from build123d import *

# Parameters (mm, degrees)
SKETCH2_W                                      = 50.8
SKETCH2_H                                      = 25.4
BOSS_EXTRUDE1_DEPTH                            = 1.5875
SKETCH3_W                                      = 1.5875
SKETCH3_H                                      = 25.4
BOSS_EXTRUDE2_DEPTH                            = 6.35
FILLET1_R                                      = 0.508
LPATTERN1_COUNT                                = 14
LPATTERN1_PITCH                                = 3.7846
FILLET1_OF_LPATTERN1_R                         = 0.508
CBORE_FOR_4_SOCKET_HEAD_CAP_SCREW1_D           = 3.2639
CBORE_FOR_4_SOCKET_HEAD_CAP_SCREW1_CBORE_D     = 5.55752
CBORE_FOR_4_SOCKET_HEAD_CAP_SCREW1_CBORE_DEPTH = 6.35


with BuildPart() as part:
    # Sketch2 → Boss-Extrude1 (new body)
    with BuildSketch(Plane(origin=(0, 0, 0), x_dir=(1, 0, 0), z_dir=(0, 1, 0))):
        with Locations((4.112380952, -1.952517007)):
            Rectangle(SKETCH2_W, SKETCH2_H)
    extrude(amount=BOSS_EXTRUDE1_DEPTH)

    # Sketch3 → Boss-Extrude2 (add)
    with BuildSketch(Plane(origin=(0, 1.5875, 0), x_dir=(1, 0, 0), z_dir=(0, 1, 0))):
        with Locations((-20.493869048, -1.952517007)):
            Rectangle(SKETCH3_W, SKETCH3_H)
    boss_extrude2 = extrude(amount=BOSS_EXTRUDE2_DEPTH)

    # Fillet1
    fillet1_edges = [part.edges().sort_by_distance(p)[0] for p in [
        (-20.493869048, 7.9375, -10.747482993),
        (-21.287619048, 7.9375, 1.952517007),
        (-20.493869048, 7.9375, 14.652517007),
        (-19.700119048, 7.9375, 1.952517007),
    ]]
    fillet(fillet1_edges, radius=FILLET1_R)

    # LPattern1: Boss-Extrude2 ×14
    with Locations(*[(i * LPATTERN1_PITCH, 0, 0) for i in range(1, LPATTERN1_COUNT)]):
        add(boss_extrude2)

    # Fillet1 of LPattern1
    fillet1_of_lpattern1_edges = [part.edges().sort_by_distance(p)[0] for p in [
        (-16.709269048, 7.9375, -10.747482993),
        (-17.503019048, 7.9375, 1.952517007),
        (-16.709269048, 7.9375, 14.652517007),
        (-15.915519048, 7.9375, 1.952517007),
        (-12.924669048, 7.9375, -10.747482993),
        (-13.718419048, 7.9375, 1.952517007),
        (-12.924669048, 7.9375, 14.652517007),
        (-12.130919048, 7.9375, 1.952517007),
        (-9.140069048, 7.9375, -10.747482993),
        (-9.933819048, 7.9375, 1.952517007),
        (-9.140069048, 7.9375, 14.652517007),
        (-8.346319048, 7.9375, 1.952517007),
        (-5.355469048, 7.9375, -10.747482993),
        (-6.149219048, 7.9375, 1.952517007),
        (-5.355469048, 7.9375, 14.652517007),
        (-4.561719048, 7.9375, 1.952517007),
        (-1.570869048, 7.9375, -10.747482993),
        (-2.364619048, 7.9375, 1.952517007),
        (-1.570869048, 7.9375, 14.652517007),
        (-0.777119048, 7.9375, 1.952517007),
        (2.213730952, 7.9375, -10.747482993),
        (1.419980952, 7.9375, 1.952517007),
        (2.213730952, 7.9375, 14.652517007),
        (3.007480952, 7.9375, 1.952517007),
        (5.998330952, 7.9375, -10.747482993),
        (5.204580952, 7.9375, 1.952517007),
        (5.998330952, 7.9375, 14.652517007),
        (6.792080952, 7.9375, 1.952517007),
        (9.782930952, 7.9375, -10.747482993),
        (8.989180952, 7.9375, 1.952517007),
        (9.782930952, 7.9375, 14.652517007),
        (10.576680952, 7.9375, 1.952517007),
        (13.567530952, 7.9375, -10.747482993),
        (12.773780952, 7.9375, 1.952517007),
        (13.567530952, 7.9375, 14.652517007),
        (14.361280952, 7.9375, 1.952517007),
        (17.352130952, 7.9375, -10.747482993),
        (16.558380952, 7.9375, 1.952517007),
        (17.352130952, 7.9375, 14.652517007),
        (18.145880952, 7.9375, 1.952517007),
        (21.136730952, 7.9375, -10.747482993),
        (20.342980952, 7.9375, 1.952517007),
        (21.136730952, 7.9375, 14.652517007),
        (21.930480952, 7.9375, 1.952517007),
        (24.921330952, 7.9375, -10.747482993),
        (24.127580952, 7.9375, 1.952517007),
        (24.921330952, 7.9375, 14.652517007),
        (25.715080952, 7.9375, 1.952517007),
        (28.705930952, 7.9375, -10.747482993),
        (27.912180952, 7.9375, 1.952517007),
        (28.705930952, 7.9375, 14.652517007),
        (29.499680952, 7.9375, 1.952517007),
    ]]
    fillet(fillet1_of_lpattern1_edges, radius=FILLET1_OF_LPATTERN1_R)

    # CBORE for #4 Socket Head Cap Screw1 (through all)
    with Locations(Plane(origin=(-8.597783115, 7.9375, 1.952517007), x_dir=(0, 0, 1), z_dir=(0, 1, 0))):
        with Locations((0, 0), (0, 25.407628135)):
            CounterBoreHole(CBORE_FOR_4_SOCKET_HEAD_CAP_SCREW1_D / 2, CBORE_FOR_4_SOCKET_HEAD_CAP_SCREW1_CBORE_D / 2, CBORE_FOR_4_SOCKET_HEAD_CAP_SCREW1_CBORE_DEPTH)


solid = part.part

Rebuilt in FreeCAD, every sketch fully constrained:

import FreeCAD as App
import Part
import Sketcher
from FreeCAD import Vector
Q = App.Units.Quantity


def edges_at(feature, points):
    """Names of the edges that pass closest to the given points."""
    edges = feature.Shape.Edges
    near = lambda p: min(range(len(edges)), key=lambda i: edges[i].distToShape(Part.Vertex(*p))[0])
    return sorted({f"Edge{near(p) + 1}" for p in points})

doc = App.newDocument("Part")
body = doc.addObject("PartDesign::Body", "Body")

# Sketch on XZ plane
sketch1 = doc.addObject("Sketcher::SketchObject", "Sketch")
body.addObject(sketch1)
sketch1.AttachmentSupport = (doc.XZ_Plane, [""])
sketch1.MapMode = "FlatFace"
sketch1.addGeometry([
    Part.LineSegment(Vector(-21, -11, 0), Vector(-21, 15, 0)),
    Part.LineSegment(Vector(-21, 15, 0), Vector(30, 15, 0)),
    Part.LineSegment(Vector(30, 15, 0), Vector(30, -11, 0)),
    Part.LineSegment(Vector(30, -11, 0), Vector(-21, -11, 0)),
], False)
sketch1.addConstraint([
    Sketcher.Constraint("Coincident", 0, 2, 1, 1),
    Sketcher.Constraint("Coincident", 1, 2, 2, 1),
    Sketcher.Constraint("Coincident", 2, 2, 3, 1),
    Sketcher.Constraint("Coincident", 3, 2, 0, 1),
    Sketcher.Constraint("Vertical", 0),
    Sketcher.Constraint("Horizontal", 1),
    Sketcher.Constraint("Vertical", 2),
    Sketcher.Constraint("Horizontal", 3),
    Sketcher.Constraint("DistanceX", 1, 1, 1, 2, Q("2 in")),
    Sketcher.Constraint("DistanceY", 0, 1, 0, 2, Q("1 in")),
    Sketcher.Constraint("DistanceX", 0, 2, -1, 1, 21.287619),
    Sketcher.Constraint("DistanceY", -1, 1, 0, 2, 14.652517),
])
pad1 = doc.addObject("PartDesign::Pad", "Pad")
body.addObject(pad1)
pad1.Profile = sketch1
pad1.Length = Q("0.0625 in")
pad1.Reversed = True

# Sketch on XZ plane
sketch2 = doc.addObject("Sketcher::SketchObject", "Sketch001")
body.addObject(sketch2)
sketch2.AttachmentSupport = (doc.XZ_Plane, [""])
sketch2.MapMode = "FlatFace"
sketch2.AttachmentOffset = App.Placement(Vector(0, 0, -0.0625 * 25.4), App.Rotation())
sketch2.addGeometry([
    Part.LineSegment(Vector(-21.3, -10.7, 0), Vector(-21.3, 14.7, 0)),
    Part.LineSegment(Vector(-21.3, 14.7, 0), Vector(-19.7, 14.7, 0)),
    Part.LineSegment(Vector(-19.7, 14.7, 0), Vector(-19.7, -10.7, 0)),
    Part.LineSegment(Vector(-19.7, -10.7, 0), Vector(-21.3, -10.7, 0)),
], False)
sketch2.addConstraint([
    Sketcher.Constraint("Coincident", 0, 2, 1, 1),
    Sketcher.Constraint("Coincident", 1, 2, 2, 1),
    Sketcher.Constraint("Coincident", 2, 2, 3, 1),
    Sketcher.Constraint("Coincident", 3, 2, 0, 1),
    Sketcher.Constraint("Vertical", 0),
    Sketcher.Constraint("Horizontal", 1),
    Sketcher.Constraint("Vertical", 2),
    Sketcher.Constraint("Horizontal", 3),
    Sketcher.Constraint("DistanceY", 0, 1, 0, 2, Q("1 in")),
    Sketcher.Constraint("DistanceX", 1, 1, 1, 2, Q("0.0625 in")),
    Sketcher.Constraint("DistanceX", 0, 2, -1, 1, 21.287619),
    Sketcher.Constraint("DistanceY", -1, 1, 0, 2, 14.652517),
])
pad2 = doc.addObject("PartDesign::Pad", "Pad001")
body.addObject(pad2)
pad2.Profile = sketch2
pad2.Length = Q("0.25 in")
pad2.Reversed = True
doc.recompute()

fillet = doc.addObject("PartDesign::Fillet", "Fillet")
body.addObject(fillet)
fillet.Base = (pad2, edges_at(pad2, [
    (-20.494, 7.938, -10.747),
    (-21.288, 7.938, 1.953),
    (-20.494, 7.938, 14.653),
    (-19.7, 7.938, 1.953),
]))
fillet.Radius = Q("0.02 in")
doc.recompute()

linearpattern = doc.addObject("PartDesign::LinearPattern", "LinearPattern")
body.addObject(linearpattern)
linearpattern.Originals = [pad2]
linearpattern.Direction = (doc.X_Axis, [""])
linearpattern.Mode = "offset"
linearpattern.Offset = Q("0.149 in")
linearpattern.Occurrences = 14
body.Tip = linearpattern
doc.recompute()

fillet2 = doc.addObject("PartDesign::Fillet", "Fillet001")
body.addObject(fillet2)
fillet2.Base = (linearpattern, edges_at(linearpattern, [
    (-16.709, 7.938, -10.747),
    (-17.503, 7.938, 1.953),
    (-16.709, 7.938, 14.653),
    (-15.916, 7.938, 1.953),
    (-12.925, 7.938, -10.747),
    (-13.718, 7.938, 1.953),
    (-12.925, 7.938, 14.653),
    (-12.131, 7.938, 1.953),
    (-9.14, 7.938, -10.747),
    (-9.934, 7.938, 1.953),
    (-9.14, 7.938, 14.653),
    (-8.346, 7.938, 1.953),
    (-5.355, 7.938, -10.747),
    (-6.149, 7.938, 1.953),
    (-5.355, 7.938, 14.653),
    (-4.562, 7.938, 1.953),
    (-1.571, 7.938, -10.747),
    (-2.365, 7.938, 1.953),
    (-1.571, 7.938, 14.653),
    (-0.777, 7.938, 1.953),
    (2.214, 7.938, -10.747),
    (1.42, 7.938, 1.953),
    (2.214, 7.938, 14.653),
    (3.007, 7.938, 1.953),
    (5.998, 7.938, -10.747),
    (5.205, 7.938, 1.953),
    (5.998, 7.938, 14.653),
    (6.792, 7.938, 1.953),
    (9.783, 7.938, -10.747),
    (8.989, 7.938, 1.953),
    (9.783, 7.938, 14.653),
    (10.577, 7.938, 1.953),
    (13.568, 7.938, -10.747),
    (12.774, 7.938, 1.953),
    (13.568, 7.938, 14.653),
    (14.361, 7.938, 1.953),
    (17.352, 7.938, -10.747),
    (16.558, 7.938, 1.953),
    (17.352, 7.938, 14.653),
    (18.146, 7.938, 1.953),
    (21.137, 7.938, -10.747),
    (20.343, 7.938, 1.953),
    (21.137, 7.938, 14.653),
    (21.93, 7.938, 1.953),
    (24.921, 7.938, -10.747),
    (24.128, 7.938, 1.953),
    (24.921, 7.938, 14.653),
    (25.715, 7.938, 1.953),
    (28.706, 7.938, -10.747),
    (27.912, 7.938, 1.953),
    (28.706, 7.938, 14.653),
    (29.5, 7.938, 1.953),
]))
fillet2.Radius = Q("0.02 in")

# Sketch on XZ plane
sketch3 = doc.addObject("Sketcher::SketchObject", "Sketch002")
body.addObject(sketch3)
sketch3.AttachmentSupport = (doc.XZ_Plane, [""])
sketch3.MapMode = "FlatFace"
sketch3.AttachmentOffset = App.Placement(Vector(0, 0, -0.3125 * 25.4), App.Rotation())
sketch3.addGeometry([
    Part.Circle(Vector(-8.6, 2, 0), Vector(0, 0, 1), 1.6),
    Part.Circle(Vector(16.8, 2, 0), Vector(0, 0, 1), 1.6),
], False)
sketch3.addConstraint([
    Sketcher.Constraint("Equal", 0, 1),
    Sketcher.Constraint("Horizontal", 0, 3, 1, 3),
    Sketcher.Constraint("Diameter", 0, Q("0.1285 in")),
    Sketcher.Constraint("DistanceX", 0, 3, 1, 3, 25.407628),
    Sketcher.Constraint("DistanceX", 0, 3, -1, 1, 8.597783),
    Sketcher.Constraint("DistanceY", -1, 1, 0, 3, 1.952517),
])
doc.recompute()
hole = doc.addObject("PartDesign::Hole", "Hole")
body.addObject(hole)
hole.Profile = sketch3
hole.ThreadType = "None"
hole.Diameter = Q("0.1285 in")
hole.DepthType = "ThroughAll"
hole.HoleCutType = "Counterbore"
hole.HoleCutDiameter = Q("0.2188 in")
hole.HoleCutDepth = Q("0.25 in")
hole.Reversed = True

doc.recompute()
